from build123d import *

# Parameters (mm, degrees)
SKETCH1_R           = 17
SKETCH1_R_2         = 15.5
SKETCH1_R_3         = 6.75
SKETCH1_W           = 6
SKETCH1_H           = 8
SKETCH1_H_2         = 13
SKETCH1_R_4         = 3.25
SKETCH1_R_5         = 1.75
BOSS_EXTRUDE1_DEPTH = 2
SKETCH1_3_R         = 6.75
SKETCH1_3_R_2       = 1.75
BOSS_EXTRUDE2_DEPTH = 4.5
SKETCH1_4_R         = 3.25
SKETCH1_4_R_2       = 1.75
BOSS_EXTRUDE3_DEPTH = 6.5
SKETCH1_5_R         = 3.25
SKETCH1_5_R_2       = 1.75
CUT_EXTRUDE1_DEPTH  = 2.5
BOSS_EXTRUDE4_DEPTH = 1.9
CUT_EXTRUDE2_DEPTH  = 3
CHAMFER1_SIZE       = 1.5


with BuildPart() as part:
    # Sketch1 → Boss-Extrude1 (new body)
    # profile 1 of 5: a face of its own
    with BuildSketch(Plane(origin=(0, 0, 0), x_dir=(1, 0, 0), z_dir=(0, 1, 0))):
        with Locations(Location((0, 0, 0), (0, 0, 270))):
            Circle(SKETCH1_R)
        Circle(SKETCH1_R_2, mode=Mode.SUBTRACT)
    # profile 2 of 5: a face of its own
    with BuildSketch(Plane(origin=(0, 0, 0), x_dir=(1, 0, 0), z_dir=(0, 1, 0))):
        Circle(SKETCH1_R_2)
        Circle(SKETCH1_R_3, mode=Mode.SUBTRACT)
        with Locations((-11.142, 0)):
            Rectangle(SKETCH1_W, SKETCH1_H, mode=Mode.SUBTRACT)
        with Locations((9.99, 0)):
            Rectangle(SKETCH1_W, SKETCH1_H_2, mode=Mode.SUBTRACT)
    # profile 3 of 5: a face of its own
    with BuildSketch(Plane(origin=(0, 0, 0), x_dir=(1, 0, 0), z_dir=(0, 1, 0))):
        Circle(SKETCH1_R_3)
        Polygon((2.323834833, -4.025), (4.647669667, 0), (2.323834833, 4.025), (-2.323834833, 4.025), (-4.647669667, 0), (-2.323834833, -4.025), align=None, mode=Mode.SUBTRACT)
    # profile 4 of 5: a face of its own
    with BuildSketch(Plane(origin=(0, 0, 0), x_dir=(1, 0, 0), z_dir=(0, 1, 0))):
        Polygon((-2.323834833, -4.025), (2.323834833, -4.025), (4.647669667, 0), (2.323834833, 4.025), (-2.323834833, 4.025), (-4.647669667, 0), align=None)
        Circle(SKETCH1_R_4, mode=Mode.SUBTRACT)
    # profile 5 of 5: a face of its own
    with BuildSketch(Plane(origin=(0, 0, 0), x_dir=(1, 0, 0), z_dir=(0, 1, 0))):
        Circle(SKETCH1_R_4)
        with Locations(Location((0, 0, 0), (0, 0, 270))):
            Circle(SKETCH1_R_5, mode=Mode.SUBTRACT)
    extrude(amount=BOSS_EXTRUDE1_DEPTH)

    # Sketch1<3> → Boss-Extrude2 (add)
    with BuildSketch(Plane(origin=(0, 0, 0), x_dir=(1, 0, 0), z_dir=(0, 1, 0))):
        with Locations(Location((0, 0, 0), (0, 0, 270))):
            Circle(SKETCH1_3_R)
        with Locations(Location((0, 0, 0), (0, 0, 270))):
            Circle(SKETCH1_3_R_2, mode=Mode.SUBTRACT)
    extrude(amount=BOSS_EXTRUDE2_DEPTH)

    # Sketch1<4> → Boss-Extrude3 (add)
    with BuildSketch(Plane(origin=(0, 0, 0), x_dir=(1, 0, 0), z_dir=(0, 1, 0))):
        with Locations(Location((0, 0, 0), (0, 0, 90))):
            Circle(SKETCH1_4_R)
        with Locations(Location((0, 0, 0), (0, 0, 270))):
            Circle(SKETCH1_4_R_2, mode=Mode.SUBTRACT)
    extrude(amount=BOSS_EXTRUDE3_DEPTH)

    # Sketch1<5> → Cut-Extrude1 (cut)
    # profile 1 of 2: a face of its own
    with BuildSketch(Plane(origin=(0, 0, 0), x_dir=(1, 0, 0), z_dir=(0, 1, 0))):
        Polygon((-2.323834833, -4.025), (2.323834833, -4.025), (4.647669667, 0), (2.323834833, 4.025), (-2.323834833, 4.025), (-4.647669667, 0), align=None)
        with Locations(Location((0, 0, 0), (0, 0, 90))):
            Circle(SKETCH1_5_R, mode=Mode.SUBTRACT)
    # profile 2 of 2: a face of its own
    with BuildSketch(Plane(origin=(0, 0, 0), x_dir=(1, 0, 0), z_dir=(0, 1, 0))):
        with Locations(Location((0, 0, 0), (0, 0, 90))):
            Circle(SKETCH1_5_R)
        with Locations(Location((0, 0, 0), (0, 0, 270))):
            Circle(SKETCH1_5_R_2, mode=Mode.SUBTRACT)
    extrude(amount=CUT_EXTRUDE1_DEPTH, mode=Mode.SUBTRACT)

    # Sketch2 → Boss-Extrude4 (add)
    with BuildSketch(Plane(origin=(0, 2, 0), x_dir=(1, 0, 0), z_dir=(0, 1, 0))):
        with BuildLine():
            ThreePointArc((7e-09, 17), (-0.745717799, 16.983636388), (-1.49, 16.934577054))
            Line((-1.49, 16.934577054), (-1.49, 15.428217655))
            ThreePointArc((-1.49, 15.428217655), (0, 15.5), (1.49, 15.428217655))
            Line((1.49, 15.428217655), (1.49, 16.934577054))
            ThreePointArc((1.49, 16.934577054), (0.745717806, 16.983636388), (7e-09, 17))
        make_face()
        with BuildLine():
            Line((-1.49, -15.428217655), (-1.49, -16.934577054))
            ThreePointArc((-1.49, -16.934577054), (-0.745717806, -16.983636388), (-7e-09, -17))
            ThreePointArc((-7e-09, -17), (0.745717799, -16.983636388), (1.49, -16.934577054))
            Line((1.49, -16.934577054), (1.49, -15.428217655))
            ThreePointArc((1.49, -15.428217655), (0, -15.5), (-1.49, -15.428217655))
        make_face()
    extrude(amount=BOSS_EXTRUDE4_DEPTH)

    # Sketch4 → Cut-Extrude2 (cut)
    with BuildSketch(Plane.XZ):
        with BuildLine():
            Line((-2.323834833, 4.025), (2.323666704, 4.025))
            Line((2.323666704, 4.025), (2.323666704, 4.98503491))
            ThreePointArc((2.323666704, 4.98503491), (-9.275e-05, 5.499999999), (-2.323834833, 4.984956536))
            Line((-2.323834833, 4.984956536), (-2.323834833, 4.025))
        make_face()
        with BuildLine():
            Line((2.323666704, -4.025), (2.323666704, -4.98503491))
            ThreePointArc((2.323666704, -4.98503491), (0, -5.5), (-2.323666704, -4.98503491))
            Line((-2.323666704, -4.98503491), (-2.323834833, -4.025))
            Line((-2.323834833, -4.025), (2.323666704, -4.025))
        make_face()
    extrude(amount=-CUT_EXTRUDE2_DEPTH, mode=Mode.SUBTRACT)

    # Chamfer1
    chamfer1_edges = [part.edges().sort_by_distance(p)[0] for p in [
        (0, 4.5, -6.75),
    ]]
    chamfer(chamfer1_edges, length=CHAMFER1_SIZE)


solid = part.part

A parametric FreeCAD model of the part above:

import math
import FreeCAD as App
import Part
import Sketcher

V = App.Vector
Q = App.Units.Quantity


def edges_at(feature, points):
    """Names of the edges that pass closest to the given points."""
    edges = feature.Shape.Edges
    near = lambda p: min(range(len(edges)), key=lambda i: edges[i].distToShape(Part.Vertex(*p))[0])
    return sorted({f"Edge{near(p) + 1}" for p in points})

doc = App.newDocument("Part")
params = doc.addObject("Spreadsheet::Sheet", "Params")
for row, (alias, value) in enumerate([
    ("sketch1_diameter", "34 mm"),
    ("sketch1_diameter2", "3.5 mm"),
    ("sketch1_width", "6 mm"),
    ("sketch1_height", "13 mm"),
    ("sketch1_height2", "8 mm"),
    ("pad1_length", "2 mm"),
    ("sketch2_diameter", "13.5 mm"),
    ("sketch2_diameter2", "3.5 mm"),
    ("pad2_length", "4.5 mm"),
    ("sketch3_diameter", "6.5 mm"),
    ("sketch3_diameter2", "3.5 mm"),
    ("pad3_length", "6.5 mm"),
    ("sketch4_diameter", "3.5 mm"),
    ("pocket1_length", "2.5 mm"),
    ("sketch5_radius", "17 mm"),
    ("sketch5_radius2", "15.5 mm"),
    ("pad4_length", "1.9 mm"),
    ("sketch6_radius", "5.5 mm"),
    ("pocket2_length", "3 mm"),
    ("chamfer_size", "1.5 mm"),
], start=1):
    params.set(f"A{row}", alias)
    params.set(f"B{row}", "=" + value)
    params.setAlias(f"B{row}", alias)

body = doc.addObject("PartDesign::Body", "Body")

sketch1 = body.newObject("Sketcher::SketchObject", "Sketch")
sketch1.AttachmentSupport = (doc.getObject("XZ_Plane"), [""])
sketch1.MapMode = "FlatFace"
sketch1.addGeometry([
    Part.Circle(V(0, 0, 0), V(0, 0, 1), 17),
    Part.LineSegment(V(6.99, 6.5, 0), V(6.99, -6.5, 0)),
    Part.LineSegment(V(6.99, -6.5, 0), V(12.99, -6.5, 0)),
    Part.LineSegment(V(12.99, -6.5, 0), V(12.99, 6.5, 0)),
    Part.LineSegment(V(12.99, 6.5, 0), V(6.99, 6.5, 0)),
    Part.LineSegment(V(-8.142, 4, 0), V(-14.142, 4, 0)),
    Part.LineSegment(V(-14.142, 4, 0), V(-14.142, -4, 0)),
    Part.LineSegment(V(-14.142, -4, 0), V(-8.142, -4, 0)),
    Part.LineSegment(V(-8.142, -4, 0), V(-8.142, 4, 0)),
    Part.Circle(V(0, 0, 0), V(0, 0, 1), 1.75),
], False)
sketch1.addConstraint([
    Sketcher.Constraint("Coincident", 1, 2, 2, 1),
    Sketcher.Constraint("Coincident", 2, 2, 3, 1),
    Sketcher.Constraint("Coincident", 3, 2, 4, 1),
    Sketcher.Constraint("Coincident", 4, 2, 1, 1),
    Sketcher.Constraint("Coincident", 5, 2, 6, 1),
    Sketcher.Constraint("Coincident", 6, 2, 7, 1),
    Sketcher.Constraint("Coincident", 7, 2, 8, 1),
    Sketcher.Constraint("Coincident", 8, 2, 5, 1),
    Sketcher.Constraint("Vertical", 1),
    Sketcher.Constraint("Horizontal", 2),
    Sketcher.Constraint("Vertical", 3),
    Sketcher.Constraint("Horizontal", 4),
    Sketcher.Constraint("Horizontal", 5),
    Sketcher.Constraint("Vertical", 6),
    Sketcher.Constraint("Horizontal", 7),
    Sketcher.Constraint("Vertical", 8),
    Sketcher.Constraint("Coincident", 0, 3, -1, 1),
    Sketcher.Constraint("Coincident", 9, 3, -1, 1),
    Sketcher.Constraint("Equal", 4, 5),
    Sketcher.Constraint("Diameter", 0, Q("34 mm")),
    Sketcher.Constraint("Diameter", 9, Q("3.5 mm")),
    Sketcher.Constraint("DistanceX", 2, 1, 2, 2, Q("6 mm")),
    Sketcher.Constraint("DistanceY", 1, 2, 1, 1, Q("13 mm")),
    Sketcher.Constraint("DistanceY", 6, 2, 6, 1, Q("8 mm")),
    Sketcher.Constraint("DistanceY", -1, 1, 5, 2, Q("4 mm")),
    Sketcher.Constraint("DistanceY", 1, 2, -1, 1, Q("6.5 mm")),
    Sketcher.Constraint("DistanceX", -1, 1, 1, 2, Q("6.99 mm")),
    Sketcher.Constraint("DistanceX", 5, 2, -1, 1, Q("14.142 mm")),
])
sketch1.setExpression("Constraints[19]", "Params.sketch1_diameter")
sketch1.setExpression("Constraints[20]", "Params.sketch1_diameter2")
sketch1.setExpression("Constraints[21]", "Params.sketch1_width")
sketch1.setExpression("Constraints[22]", "Params.sketch1_height")
sketch1.setExpression("Constraints[23]", "Params.sketch1_height2")
pad1 = body.newObject("PartDesign::Pad", "Pad")
pad1.Profile = sketch1
pad1.setExpression("Length", "Params.pad1_length")
pad1.Reversed = True

sketch2 = body.newObject("Sketcher::SketchObject", "Sketch001")
sketch2.AttachmentSupport = (doc.getObject("XZ_Plane"), [""])
sketch2.MapMode = "FlatFace"
sketch2.addGeometry([
    Part.Circle(V(0, 0, 0), V(0, 0, 1), 6.75),
    Part.Circle(V(0, 0, 0), V(0, 0, 1), 1.75),
], False)
sketch2.addConstraint([
    Sketcher.Constraint("Coincident", 0, 3, -1, 1),
    Sketcher.Constraint("Coincident", 1, 3, -1, 1),
    Sketcher.Constraint("Diameter", 0, Q("13.5 mm")),
    Sketcher.Constraint("Diameter", 1, Q("3.5 mm")),
])
sketch2.setExpression("Constraints[2]", "Params.sketch2_diameter")
sketch2.setExpression("Constraints[3]", "Params.sketch2_diameter2")
pad2 = body.newObject("PartDesign::Pad", "Pad001")
pad2.Profile = sketch2
pad2.setExpression("Length", "Params.pad2_length")
pad2.Reversed = True

sketch3 = body.newObject("Sketcher::SketchObject", "Sketch002")
sketch3.AttachmentSupport = (doc.getObject("XZ_Plane"), [""])
sketch3.MapMode = "FlatFace"
sketch3.addGeometry([
    Part.Circle(V(0, 0, 0), V(0, 0, 1), 3.25),
    Part.Circle(V(0, 0, 0), V(0, 0, 1), 1.75),
], False)
sketch3.addConstraint([
    Sketcher.Constraint("Coincident", 0, 3, -1, 1),
    Sketcher.Constraint("Coincident", 1, 3, -1, 1),
    Sketcher.Constraint("Diameter", 0, Q("6.5 mm")),
    Sketcher.Constraint("Diameter", 1, Q("3.5 mm")),
])
sketch3.setExpression("Constraints[2]", "Params.sketch3_diameter")
sketch3.setExpression("Constraints[3]", "Params.sketch3_diameter2")
pad3 = body.newObject("PartDesign::Pad", "Pad002")
pad3.Profile = sketch3
pad3.setExpression("Length", "Params.pad3_length")
pad3.Reversed = True

sketch4 = body.newObject("Sketcher::SketchObject", "Sketch003")
sketch4.AttachmentSupport = (doc.getObject("XZ_Plane"), [""])
sketch4.MapMode = "FlatFace"
sketch4.addGeometry([
    Part.LineSegment(V(-2.323835, 4.025, 0), V(2.323835, 4.025, 0)),
    Part.LineSegment(V(2.323835, 4.025, 0), V(4.64767, 0, 0)),
    Part.LineSegment(V(4.64767, 0, 0), V(2.323835, -4.025, 0)),
    Part.LineSegment(V(2.323835, -4.025, 0), V(-2.323835, -4.025, 0)),
    Part.LineSegment(V(-2.323835, -4.025, 0), V(-4.64767, 0, 0)),
    Part.LineSegment(V(-4.64767, 0, 0), V(-2.323835, 4.025, 0)),
    Part.Circle(V(0, 0, 0), V(0, 0, 1), 1.75),
], False)
sketch4.addConstraint([
    Sketcher.Constraint("Coincident", 0, 2, 1, 1),
    Sketcher.Constraint("Coincident", 1, 2, 2, 1),
    Sketcher.Constraint("Coincident", 2, 2, 3, 1),
    Sketcher.Constraint("Coincident", 3, 2, 4, 1),
    Sketcher.Constraint("Coincident", 4, 2, 5, 1),
    Sketcher.Constraint("Coincident", 5, 2, 0, 1),
    Sketcher.Constraint("Horizontal", 0),
    Sketcher.Constraint("Horizontal", 3),
    Sketcher.Constraint("Coincident", 6, 3, -1, 1),
    Sketcher.Constraint("Symmetric", 0, 2, 3, 2, -1, 1),
    Sketcher.Constraint("Symmetric", 1, 2, 4, 2, -1, 1),
    Sketcher.Constraint("PointOnObject", 1, 2, -1),
    Sketcher.Constraint("Parallel", 2, 5),
    Sketcher.Constraint("Vertical", 0, 2, 2, 2),
    Sketcher.Constraint("Diameter", 6, Q("3.5 mm")),
    Sketcher.Constraint("Angle", 1, Q("-60 deg")),
    Sketcher.Constraint("DistanceY", 2, 2, 0, 2, Q("8.05 mm")),
    Sketcher.Constraint("DistanceX", 0, 1, 0, 2, Q("4.64767 mm")),
])
sketch4.setExpression("Constraints[14]", "Params.sketch4_diameter")
pocket1 = body.newObject("PartDesign::Pocket", "Pocket")
pocket1.Profile = sketch4
pocket1.setExpression("Length", "Params.pocket1_length")

sketch5 = body.newObject("Sketcher::SketchObject", "Sketch004")
sketch5.AttachmentSupport = (doc.getObject("XZ_Plane"), [""])
sketch5.MapMode = "FlatFace"
sketch5.AttachmentOffset = App.Placement(V(0, 0, -2), App.Rotation())
sketch5.addGeometry([
    Part.ArcOfCircle(Part.Circle(V(0, 0, 0), V(0, 0, 1), 17), math.radians(-95.028258), math.radians(-90)),
    Part.LineSegment(V(-1.49, -16.934577, 0), V(-1.49, -15.428218, 0)),
    Part.ArcOfCircle(Part.Circle(V(0, 0, 0), V(0, 0, 1), 15.5), math.radians(-95.516306), math.radians(-84.483694)),
    Part.LineSegment(V(1.49, -15.428218, 0), V(1.49, -16.934577, 0)),
    Part.ArcOfCircle(Part.Circle(V(0, 0, 0), V(0, 0, 1), 17), math.radians(-90), math.radians(-84.971741)),
    Part.LineSegment(V(-1.49, 15.428218, 0), V(-1.49, 16.934577, 0)),
    Part.ArcOfCircle(Part.Circle(V(0, 0, 0), V(0, 0, 1), 17), math.radians(90), math.radians(95.028259)),
    Part.ArcOfCircle(Part.Circle(V(0, 0, 0), V(0, 0, 1), 17), math.radians(84.971742), math.radians(90)),
    Part.LineSegment(V(1.49, 16.934577, 0), V(1.49, 15.428218, 0)),
    Part.ArcOfCircle(Part.Circle(V(0, 0, 0), V(0, 0, 1), 15.5), math.radians(84.483694), math.radians(95.516306)),
], False)
sketch5.addConstraint([
    Sketcher.Constraint("Coincident", 0, 1, 1, 1),
    Sketcher.Constraint("Coincident", 1, 2, 2, 1),
    Sketcher.Constraint("Coincident", 2, 2, 3, 1),
    Sketcher.Constraint("Coincident", 3, 2, 4, 2),
    Sketcher.Constraint("Tangent", 4, 1, 0, 2),
    Sketcher.Constraint("Coincident", 5, 2, 6, 2),
    Sketcher.Constraint("Tangent", 6, 1, 7, 2),
    Sketcher.Constraint("Coincident", 7, 1, 8, 1),
    Sketcher.Constraint("Coincident", 8, 2, 9, 1),
    Sketcher.Constraint("Coincident", 9, 2, 5, 1),
    Sketcher.Constraint("Vertical", 1),
    Sketcher.Constraint("Vertical", 3),
    Sketcher.Constraint("Vertical", 5),
    Sketcher.Constraint("Vertical", 8),
    Sketcher.Constraint("Coincident", 0, 3, -1, 1),
    Sketcher.Constraint("Coincident", 2, 3, -1, 1),
    Sketcher.Constraint("Coincident", 6, 3, -1, 1),
    Sketcher.Constraint("Coincident", 9, 3, -1, 1),
    Sketcher.Constraint("Equal", 0, 4),
    Sketcher.Constraint("Equal", 4, 6),
    Sketcher.Constraint("Equal", 6, 7),
    Sketcher.Constraint("Equal", 2, 9),
    Sketcher.Constraint("PointOnObject", 4, 1, -2),
    Sketcher.Constraint("PointOnObject", 6, 1, -2),
    Sketcher.Constraint("Horizontal", 1, 2, 2, 2),
    Sketcher.Constraint("Horizontal", 5, 2, 7, 1),
    Sketcher.Constraint("Vertical", 1, 2, 5, 2),
    Sketcher.Constraint("Radius", 0, Q("17 mm")),
    Sketcher.Constraint("Radius", 2, Q("15.5 mm")),
    Sketcher.Constraint("DistanceX", 0, 1, -1, 1, Q("1.49 mm")),
])
sketch5.setExpression("Constraints[27]", "Params.sketch5_radius")
sketch5.setExpression("Constraints[28]", "Params.sketch5_radius2")
pad4 = body.newObject("PartDesign::Pad", "Pad003")
pad4.Profile = sketch5
pad4.setExpression("Length", "Params.pad4_length")
pad4.Reversed = True

sketch6 = body.newObject("Sketcher::SketchObject", "Sketch005")
sketch6.AttachmentSupport = (doc.getObject("XZ_Plane"), [""])
sketch6.MapMode = "FlatFace"
sketch6.addGeometry([
    Part.LineSegment(V(-2.323835, 4.025, 0), V(2.323667, 4.025, 0)),
    Part.LineSegment(V(2.323667, 4.025, 0), V(2.323667, 4.985035, 0)),
    Part.ArcOfCircle(Part.Circle(V(0, 0, 0), V(0, 0, 1), 5.5), math.radians(65.008434), math.radians(114.993499)),
    Part.LineSegment(V(-2.323835, 4.984957, 0), V(-2.323835, 4.025, 0)),
    Part.LineSegment(V(2.323667, -4.985035, 0), V(2.323667, -4.025, 0)),
    Part.LineSegment(V(2.323667, -4.025, 0), V(-2.323835, -4.025, 0)),
    Part.LineSegment(V(-2.323835, -4.025, 0), V(-2.323667, -4.985035, 0)),
    Part.ArcOfCircle(Part.Circle(V(0, 0, 0), V(0, 0, 1), 5.5), math.radians(-114.991566), math.radians(-65.008434)),
], False)
sketch6.addConstraint([
    Sketcher.Constraint("Coincident", 0, 2, 1, 1),
    Sketcher.Constraint("Coincident", 1, 2, 2, 1),
    Sketcher.Constraint("Coincident", 2, 2, 3, 1),
    Sketcher.Constraint("Coincident", 3, 2, 0, 1),
    Sketcher.Constraint("Coincident", 4, 2, 5, 1),
    Sketcher.Constraint("Coincident", 5, 2, 6, 1),
    Sketcher.Constraint("Coincident", 6, 2, 7, 1),
    Sketcher.Constraint("Coincident", 7, 2, 4, 1),
    Sketcher.Constraint("Horizontal", 0),
    Sketcher.Constraint("Vertical", 1),
    Sketcher.Constraint("Vertical", 3),
    Sketcher.Constraint("Vertical", 4),
    Sketcher.Constraint("Horizontal", 5),
    Sketcher.Constraint("Coincident", 2, 3, -1, 1),
    Sketcher.Constraint("Coincident", 7, 3, -1, 1),
    Sketcher.Constraint("Equal", 2, 7),
    Sketcher.Constraint("Symmetric", 0, 2, 4, 2, -1),
    Sketcher.Constraint("Horizontal", 6, 2, 7, 2),
    Sketcher.Constraint("Vertical", 3, 2, 5, 2),
    Sketcher.Constraint("Radius", 2, Q("5.5 mm")),
    Sketcher.Constraint("DistanceY", 4, 2, 0, 2, Q("8.05 mm")),
    Sketcher.Constraint("DistanceX", 0, 1, 0, 2, Q("4.647502 mm")),
    Sketcher.Constraint("DistanceY", 1, 1, 1, 2, Q("0.960035 mm")),
])
sketch6.setExpression("Constraints[19]", "Params.sketch6_radius")
pocket2 = body.newObject("PartDesign::Pocket", "Pocket001")
pocket2.Profile = sketch6
pocket2.setExpression("Length", "Params.pocket2_length")
doc.recompute()

chamfer = body.newObject("PartDesign::Chamfer", "Chamfer")
chamfer.Base = (pocket2, edges_at(pocket2, [(0, 4.5, -6.75)]))
chamfer.setExpression("Size", "Params.chamfer_size")

doc.recompute()
